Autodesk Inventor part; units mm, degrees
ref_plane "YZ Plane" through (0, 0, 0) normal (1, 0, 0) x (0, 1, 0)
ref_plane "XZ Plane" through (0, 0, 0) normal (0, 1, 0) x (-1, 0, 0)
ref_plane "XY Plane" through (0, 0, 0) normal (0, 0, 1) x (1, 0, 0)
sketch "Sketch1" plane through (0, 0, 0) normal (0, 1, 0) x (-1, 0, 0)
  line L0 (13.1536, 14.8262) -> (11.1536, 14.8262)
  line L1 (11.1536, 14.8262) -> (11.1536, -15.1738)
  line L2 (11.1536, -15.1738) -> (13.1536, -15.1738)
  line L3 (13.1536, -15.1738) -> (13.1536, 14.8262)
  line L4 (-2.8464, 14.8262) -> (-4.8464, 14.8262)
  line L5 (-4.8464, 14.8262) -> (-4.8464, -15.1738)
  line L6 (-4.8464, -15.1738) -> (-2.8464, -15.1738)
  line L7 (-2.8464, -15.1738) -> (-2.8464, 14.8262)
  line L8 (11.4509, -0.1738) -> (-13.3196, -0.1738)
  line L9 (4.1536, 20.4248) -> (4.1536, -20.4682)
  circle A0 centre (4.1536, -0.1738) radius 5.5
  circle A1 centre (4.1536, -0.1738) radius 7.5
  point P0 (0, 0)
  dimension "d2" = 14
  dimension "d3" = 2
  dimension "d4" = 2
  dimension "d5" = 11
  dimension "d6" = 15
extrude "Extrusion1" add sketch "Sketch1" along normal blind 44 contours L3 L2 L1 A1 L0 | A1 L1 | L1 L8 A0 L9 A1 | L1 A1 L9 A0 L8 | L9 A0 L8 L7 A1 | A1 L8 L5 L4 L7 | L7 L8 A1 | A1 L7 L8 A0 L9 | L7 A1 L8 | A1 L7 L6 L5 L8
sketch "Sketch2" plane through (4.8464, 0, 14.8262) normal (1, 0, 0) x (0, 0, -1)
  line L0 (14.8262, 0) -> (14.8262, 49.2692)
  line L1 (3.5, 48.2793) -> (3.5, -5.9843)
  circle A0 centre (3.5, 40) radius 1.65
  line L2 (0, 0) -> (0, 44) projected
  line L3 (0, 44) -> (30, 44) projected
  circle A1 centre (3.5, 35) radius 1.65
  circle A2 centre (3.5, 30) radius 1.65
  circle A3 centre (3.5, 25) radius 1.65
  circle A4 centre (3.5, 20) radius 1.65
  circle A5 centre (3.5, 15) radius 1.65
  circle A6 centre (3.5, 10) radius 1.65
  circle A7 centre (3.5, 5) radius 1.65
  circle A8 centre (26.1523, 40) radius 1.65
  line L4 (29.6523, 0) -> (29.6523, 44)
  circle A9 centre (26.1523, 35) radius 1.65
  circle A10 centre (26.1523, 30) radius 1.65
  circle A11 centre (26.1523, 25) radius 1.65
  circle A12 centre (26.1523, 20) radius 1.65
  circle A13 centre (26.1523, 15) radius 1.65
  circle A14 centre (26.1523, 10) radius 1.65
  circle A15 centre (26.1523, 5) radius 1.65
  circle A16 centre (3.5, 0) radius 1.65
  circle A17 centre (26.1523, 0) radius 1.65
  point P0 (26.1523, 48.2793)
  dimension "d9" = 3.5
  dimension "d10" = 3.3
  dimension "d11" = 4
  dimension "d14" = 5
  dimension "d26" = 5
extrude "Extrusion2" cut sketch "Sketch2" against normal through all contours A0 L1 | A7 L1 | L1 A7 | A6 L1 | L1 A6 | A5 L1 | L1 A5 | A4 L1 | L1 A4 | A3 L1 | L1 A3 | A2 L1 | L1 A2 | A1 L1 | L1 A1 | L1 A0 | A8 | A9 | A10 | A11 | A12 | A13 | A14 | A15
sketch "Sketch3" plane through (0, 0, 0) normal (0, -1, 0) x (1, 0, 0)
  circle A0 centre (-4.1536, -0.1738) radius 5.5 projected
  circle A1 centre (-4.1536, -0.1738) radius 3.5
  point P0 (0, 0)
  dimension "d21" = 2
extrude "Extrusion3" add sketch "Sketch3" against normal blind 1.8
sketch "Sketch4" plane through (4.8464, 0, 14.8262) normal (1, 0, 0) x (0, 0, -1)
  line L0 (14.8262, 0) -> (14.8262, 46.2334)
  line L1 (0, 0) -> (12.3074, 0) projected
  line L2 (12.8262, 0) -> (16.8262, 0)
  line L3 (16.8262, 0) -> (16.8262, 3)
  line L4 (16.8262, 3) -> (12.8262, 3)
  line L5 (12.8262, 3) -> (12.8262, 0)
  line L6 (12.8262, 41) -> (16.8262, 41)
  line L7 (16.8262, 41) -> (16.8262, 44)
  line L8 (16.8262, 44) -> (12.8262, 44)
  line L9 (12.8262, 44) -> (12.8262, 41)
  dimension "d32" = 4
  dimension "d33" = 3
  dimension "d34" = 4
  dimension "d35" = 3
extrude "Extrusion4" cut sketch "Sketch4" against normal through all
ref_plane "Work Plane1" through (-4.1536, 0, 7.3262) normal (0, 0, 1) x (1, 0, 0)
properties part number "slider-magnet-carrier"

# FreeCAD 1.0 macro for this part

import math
import FreeCAD as App
import Part
import Sketcher

doc = App.newDocument("Part")
body = doc.addObject("PartDesign::Body", "Body")

# Sketch on XZ plane
sketch1 = doc.addObject("Sketcher::SketchObject", "Sketch")
body.addObject(sketch1)
sketch1.AttachmentSupport = (doc.XZ_Plane, [""])
sketch1.MapMode = "FlatFace"
sketch1.addGeometry(Part.LineSegment(App.Vector(-13.2, -15.2, 0), App.Vector(-13.2, 14.8, 0)), False)
sketch1.addGeometry(Part.LineSegment(App.Vector(-13.2, 14.8, 0), App.Vector(-11.2, 14.8, 0)), False)
sketch1.addGeometry(Part.LineSegment(App.Vector(-11.2, 14.8, 0), App.Vector(-11.2, 2.5, 0)), False)
sketch1.addGeometry(Part.ArcOfCircle(Part.Circle(App.Vector(-4.2, -0.2, 0), App.Vector(0, 0, 1), 7.5), math.radians(21), math.radians(159)), False)
sketch1.addGeometry(Part.LineSegment(App.Vector(2.8, 2.5, 0), App.Vector(2.8, 14.8, 0)), False)
sketch1.addGeometry(Part.LineSegment(App.Vector(2.8, 14.8, 0), App.Vector(4.8, 14.8, 0)), False)
sketch1.addGeometry(Part.LineSegment(App.Vector(4.8, 14.8, 0), App.Vector(4.8, -15.2, 0)), False)
sketch1.addGeometry(Part.LineSegment(App.Vector(4.8, -15.2, 0), App.Vector(2.8, -15.2, 0)), False)
sketch1.addGeometry(Part.LineSegment(App.Vector(2.8, -15.2, 0), App.Vector(2.8, -2.9, 0)), False)
sketch1.addGeometry(Part.ArcOfCircle(Part.Circle(App.Vector(-4.2, -0.2, 0), App.Vector(0, 0, 1), 7.5), math.radians(-159), math.radians(-21)), False)
sketch1.addGeometry(Part.LineSegment(App.Vector(-11.2, -2.9, 0), App.Vector(-11.2, -15.2, 0)), False)
sketch1.addGeometry(Part.LineSegment(App.Vector(-11.2, -15.2, 0), App.Vector(-13.2, -15.2, 0)), False)
sketch1.addGeometry(Part.Circle(App.Vector(-4.2, -0.2, 0), App.Vector(0, 0, 1), 5.5), False)
sketch1.addConstraint(Sketcher.Constraint("Coincident", 0, 2, 1, 1))
sketch1.addConstraint(Sketcher.Constraint("Coincident", 1, 2, 2, 1))
sketch1.addConstraint(Sketcher.Constraint("Coincident", 2, 2, 3, 2))
sketch1.addConstraint(Sketcher.Constraint("Coincident", 3, 1, 4, 1))
sketch1.addConstraint(Sketcher.Constraint("Coincident", 4, 2, 5, 1))
sketch1.addConstraint(Sketcher.Constraint("Coincident", 5, 2, 6, 1))
sketch1.addConstraint(Sketcher.Constraint("Coincident", 6, 2, 7, 1))
sketch1.addConstraint(Sketcher.Constraint("Coincident", 7, 2, 8, 1))
sketch1.addConstraint(Sketcher.Constraint("Coincident", 8, 2, 9, 2))
sketch1.addConstraint(Sketcher.Constraint("Coincident", 9, 1, 10, 1))
sketch1.addConstraint(Sketcher.Constraint("Coincident", 10, 2, 11, 1))
sketch1.addConstraint(Sketcher.Constraint("Coincident", 11, 2, 0, 1))
sketch1.addConstraint(Sketcher.Constraint("Vertical", 0))
sketch1.addConstraint(Sketcher.Constraint("Horizontal", 1))
sketch1.addConstraint(Sketcher.Constraint("Vertical", 2))
sketch1.addConstraint(Sketcher.Constraint("Vertical", 4))
sketch1.addConstraint(Sketcher.Constraint("Horizontal", 5))
sketch1.addConstraint(Sketcher.Constraint("Vertical", 6))
sketch1.addConstraint(Sketcher.Constraint("Horizontal", 7))
sketch1.addConstraint(Sketcher.Constraint("Vertical", 8))
sketch1.addConstraint(Sketcher.Constraint("Vertical", 10))
sketch1.addConstraint(Sketcher.Constraint("Horizontal", 11))
sketch1.addConstraint(Sketcher.Constraint("Coincident", 9, 3, 3, 3))
sketch1.addConstraint(Sketcher.Constraint("Coincident", 12, 3, 3, 3))
sketch1.addConstraint(Sketcher.Constraint("Equal", 3, 9))
sketch1.addConstraint(Sketcher.Constraint("Horizontal", 2, 2, 3, 1))
sketch1.addConstraint(Sketcher.Constraint("Horizontal", 1, 2, 4, 2))
sketch1.addConstraint(Sketcher.Constraint("Horizontal", 8, 2, 9, 1))
sketch1.addConstraint(Sketcher.Constraint("Horizontal", 7, 2, 10, 2))
sketch1.addConstraint(Sketcher.Constraint("Vertical", 4, 2, 7, 2))
sketch1.addConstraint(Sketcher.Constraint("Equal", 1, 5))
sketch1.addConstraint(Sketcher.Constraint("Equal", 4, 8))
sketch1.addConstraint(Sketcher.Constraint("Diameter", 12, 11.0))
sketch1.addConstraint(Sketcher.Constraint("Radius", 3, 7.5))
sketch1.addConstraint(Sketcher.Constraint("DistanceX", 1, 1, 1, 2, 2.0))
sketch1.addConstraint(Sketcher.Constraint("DistanceY", 3, 3, 0, 2, 15.0))
sketch1.addConstraint(Sketcher.Constraint("DistanceX", 2, 2, 3, 1, 14.0))
sketch1.addConstraint(Sketcher.Constraint("DistanceX", 3, 3, -1, 1, 4.1536))
sketch1.addConstraint(Sketcher.Constraint("DistanceY", 3, 3, -1, 1, 0.1738))
pad1 = doc.addObject("PartDesign::Pad", "Pad")
body.addObject(pad1)
pad1.Profile = sketch1
pad1.Length = 44
pad1.Reversed = True

# Sketch on YZ plane
sketch2 = doc.addObject("Sketcher::SketchObject", "Sketch001")
body.addObject(sketch2)
sketch2.AttachmentSupport = (doc.YZ_Plane, [""])
sketch2.MapMode = "FlatFace"
sketch2.AttachmentOffset = App.Placement(App.Vector(0, 0, 4.8464), App.Rotation())
sketch2.addGeometry(Part.Circle(App.Vector(40, 11.3, 0), App.Vector(0, 0, 1), 1.6), False)
sketch2.addGeometry(Part.Circle(App.Vector(5, 11.3, 0), App.Vector(0, 0, 1), 1.6), False)
sketch2.addGeometry(Part.Circle(App.Vector(10, 11.3, 0), App.Vector(0, 0, 1), 1.6), False)
sketch2.addGeometry(Part.Circle(App.Vector(15, 11.3, 0), App.Vector(0, 0, 1), 1.6), False)
sketch2.addGeometry(Part.Circle(App.Vector(20, 11.3, 0), App.Vector(0, 0, 1), 1.6), False)
sketch2.addGeometry(Part.Circle(App.Vector(25, 11.3, 0), App.Vector(0, 0, 1), 1.6), False)
sketch2.addGeometry(Part.Circle(App.Vector(30, 11.3, 0), App.Vector(0, 0, 1), 1.6), False)
sketch2.addGeometry(Part.Circle(App.Vector(35, 11.3, 0), App.Vector(0, 0, 1), 1.6), False)
sketch2.addGeometry(Part.Circle(App.Vector(40, -11.3, 0), App.Vector(0, 0, 1), 1.6), False)
sketch2.addGeometry(Part.Circle(App.Vector(35, -11.3, 0), App.Vector(0, 0, 1), 1.6), False)
sketch2.addGeometry(Part.Circle(App.Vector(30, -11.3, 0), App.Vector(0, 0, 1), 1.6), False)
sketch2.addGeometry(Part.Circle(App.Vector(25, -11.3, 0), App.Vector(0, 0, 1), 1.6), False)
sketch2.addGeometry(Part.Circle(App.Vector(20, -11.3, 0), App.Vector(0, 0, 1), 1.6), False)
sketch2.addGeometry(Part.Circle(App.Vector(15, -11.3, 0), App.Vector(0, 0, 1), 1.6), False)
sketch2.addGeometry(Part.Circle(App.Vector(10, -11.3, 0), App.Vector(0, 0, 1), 1.6), False)
sketch2.addGeometry(Part.Circle(App.Vector(5, -11.3, 0), App.Vector(0, 0, 1), 1.6), False)
sketch2.addConstraint(Sketcher.Constraint("Equal", 0, 1))
sketch2.addConstraint(Sketcher.Constraint("Equal", 1, 2))
sketch2.addConstraint(Sketcher.Constraint("Equal", 2, 3))
sketch2.addConstraint(Sketcher.Constraint("Equal", 3, 4))
sketch2.addConstraint(Sketcher.Constraint("Equal", 4, 5))
sketch2.addConstraint(Sketcher.Constraint("Equal", 5, 6))
sketch2.addConstraint(Sketcher.Constraint("Equal", 6, 7))
sketch2.addConstraint(Sketcher.Constraint("Equal", 7, 8))
sketch2.addConstraint(Sketcher.Constraint("Equal", 8, 9))
sketch2.addConstraint(Sketcher.Constraint("Equal", 9, 10))
sketch2.addConstraint(Sketcher.Constraint("Equal", 10, 11))
sketch2.addConstraint(Sketcher.Constraint("Equal", 11, 12))
sketch2.addConstraint(Sketcher.Constraint("Equal", 12, 13))
sketch2.addConstraint(Sketcher.Constraint("Equal", 13, 14))
sketch2.addConstraint(Sketcher.Constraint("Equal", 14, 15))
sketch2.addConstraint(Sketcher.Constraint("Symmetric", 0, 3, 8, 3, -1))
sketch2.addConstraint(Sketcher.Constraint("Symmetric", 7, 3, 9, 3, -1))
sketch2.addConstraint(Sketcher.Constraint("Symmetric", 6, 3, 10, 3, -1))
sketch2.addConstraint(Sketcher.Constraint("Symmetric", 5, 3, 11, 3, -1))
sketch2.addConstraint(Sketcher.Constraint("Symmetric", 4, 3, 12, 3, -1))
sketch2.addConstraint(Sketcher.Constraint("Symmetric", 3, 3, 13, 3, -1))
sketch2.addConstraint(Sketcher.Constraint("Symmetric", 2, 3, 14, 3, -1))
sketch2.addConstraint(Sketcher.Constraint("Symmetric", 1, 3, 15, 3, -1))
sketch2.addConstraint(Sketcher.Constraint("Horizontal", 0, 3, 1, 3))
sketch2.addConstraint(Sketcher.Constraint("Horizontal", 1, 3, 2, 3))
sketch2.addConstraint(Sketcher.Constraint("Horizontal", 2, 3, 3, 3))
sketch2.addConstraint(Sketcher.Constraint("Horizontal", 3, 3, 4, 3))
sketch2.addConstraint(Sketcher.Constraint("Horizontal", 4, 3, 5, 3))
sketch2.addConstraint(Sketcher.Constraint("Horizontal", 5, 3, 6, 3))
sketch2.addConstraint(Sketcher.Constraint("Horizontal", 6, 3, 7, 3))
sketch2.addConstraint(Sketcher.Constraint("Diameter", 0, 3.3))
sketch2.addConstraint(Sketcher.Constraint("DistanceX", -1, 1, 1, 3, 5.0))
sketch2.addConstraint(Sketcher.Constraint("DistanceX", -1, 1, 2, 3, 10.0))
sketch2.addConstraint(Sketcher.Constraint("DistanceX", 2, 3, 3, 3, 5.0))
sketch2.addConstraint(Sketcher.Constraint("DistanceX", 3, 3, 4, 3, 5.0))
sketch2.addConstraint(Sketcher.Constraint("DistanceX", 4, 3, 5, 3, 5.0))
sketch2.addConstraint(Sketcher.Constraint("DistanceX", 5, 3, 6, 3, 5.0))
sketch2.addConstraint(Sketcher.Constraint("DistanceX", 6, 3, 0, 3, 10.0))
sketch2.addConstraint(Sketcher.Constraint("DistanceX", 7, 3, 0, 3, 5.0))
sketch2.addConstraint(Sketcher.Constraint("DistanceY", 8, 3, -1, 1, 11.326))
pocket1 = doc.addObject("PartDesign::Pocket", "Pocket")
body.addObject(pocket1)
pocket1.Profile = sketch2
pocket1.Type = "ThroughAll"

# Sketch on XZ plane
sketch3 = doc.addObject("Sketcher::SketchObject", "Sketch002")
body.addObject(sketch3)
sketch3.AttachmentSupport = (doc.XZ_Plane, [""])
sketch3.MapMode = "FlatFace"
sketch3.addGeometry(Part.Circle(App.Vector(-4.2, -0.2, 0), App.Vector(0, 0, 1), 5.5), False)
sketch3.addGeometry(Part.Circle(App.Vector(-4.2, -0.2, 0), App.Vector(0, 0, 1), 3.5), False)
sketch3.addConstraint(Sketcher.Constraint("Coincident", 1, 3, 0, 3))
sketch3.addConstraint(Sketcher.Constraint("Diameter", 0, 11.0))
sketch3.addConstraint(Sketcher.Constraint("Diameter", 1, 7.0))
sketch3.addConstraint(Sketcher.Constraint("DistanceX", 0, 3, -1, 1, 4.1536))
sketch3.addConstraint(Sketcher.Constraint("DistanceY", 0, 3, -1, 1, 0.1738))
pad2 = doc.addObject("PartDesign::Pad", "Pad001")
body.addObject(pad2)
pad2.Profile = sketch3
pad2.Length = 1.8
pad2.Reversed = True

# Sketch on YZ plane
sketch4 = doc.addObject("Sketcher::SketchObject", "Sketch003")
body.addObject(sketch4)
sketch4.AttachmentSupport = (doc.YZ_Plane, [""])
sketch4.MapMode = "FlatFace"
sketch4.AttachmentOffset = App.Placement(App.Vector(0, 0, 4.8464), App.Rotation())
sketch4.addGeometry(Part.LineSegment(App.Vector(0, 2, 0), App.Vector(0, -2, 0)), False)
sketch4.addGeometry(Part.LineSegment(App.Vector(0, -2, 0), App.Vector(3, -2, 0)), False)
sketch4.addGeometry(Part.LineSegment(App.Vector(3, -2, 0), App.Vector(3, 2, 0)), False)
sketch4.addGeometry(Part.LineSegment(App.Vector(3, 2, 0), App.Vector(0, 2, 0)), False)
sketch4.addGeometry(Part.LineSegment(App.Vector(41, 2, 0), App.Vector(41, -2, 0)), False)
sketch4.addGeometry(Part.LineSegment(App.Vector(41, -2, 0), App.Vector(44, -2, 0)), False)
sketch4.addGeometry(Part.LineSegment(App.Vector(44, -2, 0), App.Vector(44, 2, 0)), False)
sketch4.addGeometry(Part.LineSegment(App.Vector(44, 2, 0), App.Vector(41, 2, 0)), False)
sketch4.addConstraint(Sketcher.Constraint("Coincident", 0, 2, 1, 1))
sketch4.addConstraint(Sketcher.Constraint("Coincident", 1, 2, 2, 1))
sketch4.addConstraint(Sketcher.Constraint("Coincident", 2, 2, 3, 1))
sketch4.addConstraint(Sketcher.Constraint("Coincident", 3, 2, 0, 1))
sketch4.addConstraint(Sketcher.Constraint("Coincident", 4, 2, 5, 1))
sketch4.addConstraint(Sketcher.Constraint("Coincident", 5, 2, 6, 1))
sketch4.addConstraint(Sketcher.Constraint("Coincident", 6, 2, 7, 1))
sketch4.addConstraint(Sketcher.Constraint("Coincident", 7, 2, 4, 1))
sketch4.addConstraint(Sketcher.Constraint("Vertical", 0))
sketch4.addConstraint(Sketcher.Constraint("Horizontal", 1))
sketch4.addConstraint(Sketcher.Constraint("Vertical", 2))
sketch4.addConstraint(Sketcher.Constraint("Horizontal", 3))
sketch4.addConstraint(Sketcher.Constraint("Vertical", 4))
sketch4.addConstraint(Sketcher.Constraint("Horizontal", 5))
sketch4.addConstraint(Sketcher.Constraint("Vertical", 6))
sketch4.addConstraint(Sketcher.Constraint("Horizontal", 7))
sketch4.addConstraint(Sketcher.Constraint("Symmetric", 0, 2, 3, 2, -1, 1))
sketch4.addConstraint(Sketcher.Constraint("Horizontal", 1, 2, 4, 2))
sketch4.addConstraint(Sketcher.Constraint("Horizontal", 3, 2, 6, 2))
sketch4.addConstraint(Sketcher.Constraint("Equal", 3, 5))
sketch4.addConstraint(Sketcher.Constraint("DistanceX", 1, 1, 1, 2, 3.0))
sketch4.addConstraint(Sketcher.Constraint("DistanceY", 0, 2, 0, 1, 4.0))
sketch4.addConstraint(Sketcher.Constraint("DistanceX", -1, 1, 4, 2, 41.0))
pocket2 = doc.addObject("PartDesign::Pocket", "Pocket001")
body.addObject(pocket2)
pocket2.Profile = sketch4
pocket2.Type = "ThroughAll"

doc.recompute()
